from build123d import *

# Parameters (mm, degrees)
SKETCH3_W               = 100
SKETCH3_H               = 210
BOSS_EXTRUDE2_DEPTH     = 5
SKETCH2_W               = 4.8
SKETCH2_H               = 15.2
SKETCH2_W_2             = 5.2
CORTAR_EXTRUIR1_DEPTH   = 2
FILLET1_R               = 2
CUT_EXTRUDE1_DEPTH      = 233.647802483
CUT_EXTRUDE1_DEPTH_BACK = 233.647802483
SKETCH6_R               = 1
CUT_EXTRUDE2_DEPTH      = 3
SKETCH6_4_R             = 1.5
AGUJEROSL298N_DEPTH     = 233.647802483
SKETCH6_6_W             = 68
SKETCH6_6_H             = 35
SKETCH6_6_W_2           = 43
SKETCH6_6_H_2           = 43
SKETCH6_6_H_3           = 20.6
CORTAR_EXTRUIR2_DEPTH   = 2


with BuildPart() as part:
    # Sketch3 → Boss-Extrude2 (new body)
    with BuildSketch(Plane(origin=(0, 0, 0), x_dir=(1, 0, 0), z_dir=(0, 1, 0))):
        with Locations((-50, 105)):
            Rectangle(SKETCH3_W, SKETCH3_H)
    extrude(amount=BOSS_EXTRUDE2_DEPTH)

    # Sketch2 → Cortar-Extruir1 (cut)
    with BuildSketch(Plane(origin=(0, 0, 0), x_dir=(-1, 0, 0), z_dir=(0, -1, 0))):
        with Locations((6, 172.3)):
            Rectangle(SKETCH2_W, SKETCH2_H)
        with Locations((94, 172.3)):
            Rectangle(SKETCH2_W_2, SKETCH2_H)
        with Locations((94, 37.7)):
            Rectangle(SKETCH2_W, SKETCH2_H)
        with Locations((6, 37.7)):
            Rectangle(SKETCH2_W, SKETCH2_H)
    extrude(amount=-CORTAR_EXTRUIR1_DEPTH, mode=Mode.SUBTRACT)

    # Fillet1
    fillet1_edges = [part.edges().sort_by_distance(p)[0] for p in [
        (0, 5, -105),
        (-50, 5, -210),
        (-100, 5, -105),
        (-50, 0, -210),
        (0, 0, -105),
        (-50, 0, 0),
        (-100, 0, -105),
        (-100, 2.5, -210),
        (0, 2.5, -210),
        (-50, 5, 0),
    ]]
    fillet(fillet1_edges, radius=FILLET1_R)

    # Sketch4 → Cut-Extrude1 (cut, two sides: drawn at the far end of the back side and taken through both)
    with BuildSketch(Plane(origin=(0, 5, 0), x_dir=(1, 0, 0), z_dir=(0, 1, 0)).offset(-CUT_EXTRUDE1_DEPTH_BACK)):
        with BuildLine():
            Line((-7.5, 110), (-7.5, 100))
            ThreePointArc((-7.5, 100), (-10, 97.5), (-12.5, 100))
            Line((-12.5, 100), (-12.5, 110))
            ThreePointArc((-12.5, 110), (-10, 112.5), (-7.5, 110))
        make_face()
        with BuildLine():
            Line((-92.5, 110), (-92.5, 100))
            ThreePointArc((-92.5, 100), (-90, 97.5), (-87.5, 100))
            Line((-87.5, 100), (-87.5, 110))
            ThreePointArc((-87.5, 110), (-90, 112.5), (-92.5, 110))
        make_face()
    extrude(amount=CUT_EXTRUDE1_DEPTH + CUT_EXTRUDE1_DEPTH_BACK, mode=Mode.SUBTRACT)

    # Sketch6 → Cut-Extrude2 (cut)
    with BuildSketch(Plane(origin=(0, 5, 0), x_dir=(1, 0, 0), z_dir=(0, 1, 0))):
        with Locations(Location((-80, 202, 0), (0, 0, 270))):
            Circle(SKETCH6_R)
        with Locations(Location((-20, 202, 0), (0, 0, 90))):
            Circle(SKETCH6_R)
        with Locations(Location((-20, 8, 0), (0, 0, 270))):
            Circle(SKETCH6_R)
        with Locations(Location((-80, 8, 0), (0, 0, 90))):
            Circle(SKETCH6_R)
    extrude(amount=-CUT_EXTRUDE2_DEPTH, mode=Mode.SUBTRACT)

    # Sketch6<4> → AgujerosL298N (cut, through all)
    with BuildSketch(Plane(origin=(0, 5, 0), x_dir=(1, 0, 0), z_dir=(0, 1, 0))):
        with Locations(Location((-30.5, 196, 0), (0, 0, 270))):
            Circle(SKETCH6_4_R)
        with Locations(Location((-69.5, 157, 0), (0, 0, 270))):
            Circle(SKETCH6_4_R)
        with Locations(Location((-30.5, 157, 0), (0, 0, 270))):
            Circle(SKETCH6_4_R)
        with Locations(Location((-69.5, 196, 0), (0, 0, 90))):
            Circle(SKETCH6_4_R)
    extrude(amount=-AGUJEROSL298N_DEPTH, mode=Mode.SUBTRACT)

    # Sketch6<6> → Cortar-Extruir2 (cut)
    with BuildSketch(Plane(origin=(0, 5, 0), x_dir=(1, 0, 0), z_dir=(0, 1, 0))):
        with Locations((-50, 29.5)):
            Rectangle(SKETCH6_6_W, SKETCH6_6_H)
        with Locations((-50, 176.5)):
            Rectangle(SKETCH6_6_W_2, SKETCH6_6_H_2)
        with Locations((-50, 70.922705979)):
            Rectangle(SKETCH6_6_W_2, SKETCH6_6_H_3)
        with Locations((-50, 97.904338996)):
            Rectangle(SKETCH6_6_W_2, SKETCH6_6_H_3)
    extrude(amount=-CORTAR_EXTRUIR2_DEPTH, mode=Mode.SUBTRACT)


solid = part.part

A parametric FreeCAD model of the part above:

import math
import FreeCAD as App
import Part
import Sketcher

V = App.Vector
Q = App.Units.Quantity


def edges_at(feature, points):
    """Names of the edges that pass closest to the given points."""
    edges = feature.Shape.Edges
    near = lambda p: min(range(len(edges)), key=lambda i: edges[i].distToShape(Part.Vertex(*p))[0])
    return sorted({f"Edge{near(p) + 1}" for p in points})

doc = App.newDocument("Part")
body = doc.addObject("PartDesign::Body", "Body")

# Sketch on XZ plane
sketch1 = body.newObject("Sketcher::SketchObject", "Sketch")
sketch1.AttachmentSupport = (doc.getObject("XZ_Plane"), [""])
sketch1.MapMode = "FlatFace"
sketch1.addGeometry([
    Part.LineSegment(V(-100, -210, 0), V(-100, 0, 0)),
    Part.LineSegment(V(-100, 0, 0), V(0, 0, 0)),
    Part.LineSegment(V(0, 0, 0), V(0, -210, 0)),
    Part.LineSegment(V(0, -210, 0), V(-100, -210, 0)),
], False)
sketch1.addConstraint([
    Sketcher.Constraint("Coincident", 0, 2, 1, 1),
    Sketcher.Constraint("Coincident", 1, 2, 2, 1),
    Sketcher.Constraint("Coincident", 2, 2, 3, 1),
    Sketcher.Constraint("Coincident", 3, 2, 0, 1),
    Sketcher.Constraint("Vertical", 0),
    Sketcher.Constraint("Horizontal", 1),
    Sketcher.Constraint("Vertical", 2),
    Sketcher.Constraint("Horizontal", 3),
    Sketcher.Constraint("Coincident", 1, 2, -1, 1),
    Sketcher.Constraint("DistanceX", 1, 1, 1, 2, Q("100 mm")),
    Sketcher.Constraint("DistanceY", 0, 1, 0, 2, Q("210 mm")),
])
pad1 = body.newObject("PartDesign::Pad", "Pad")
pad1.Profile = sketch1
pad1.Length = 5
pad1.Reversed = True

# Sketch on XZ plane
sketch2 = body.newObject("Sketcher::SketchObject", "Sketch001")
sketch2.AttachmentSupport = (doc.getObject("XZ_Plane"), [""])
sketch2.MapMode = "FlatFace"
sketch2.addGeometry([
    Part.LineSegment(V(-3.6, -179.9, 0), V(-3.6, -164.7, 0)),  # 0
    Part.LineSegment(V(-3.6, -164.7, 0), V(-8.4, -164.7, 0)),  # 1
    Part.LineSegment(V(-8.4, -164.7, 0), V(-8.4, -179.9, 0)),  # 2
    Part.LineSegment(V(-8.4, -179.9, 0), V(-3.6, -179.9, 0)),  # 3
    Part.LineSegment(V(-91.4, -179.9, 0), V(-91.4, -164.7, 0)),  # 4
    Part.LineSegment(V(-91.4, -164.7, 0), V(-96.6, -164.7, 0)),  # 5
    Part.LineSegment(V(-96.6, -164.7, 0), V(-96.6, -179.9, 0)),  # 6
    Part.LineSegment(V(-96.6, -179.9, 0), V(-91.4, -179.9, 0)),  # 7
    Part.LineSegment(V(-91.6, -45.3, 0), V(-91.6, -30.1, 0)),  # 8
    Part.LineSegment(V(-91.6, -30.1, 0), V(-96.4, -30.1, 0)),  # 9
    Part.LineSegment(V(-96.4, -30.1, 0), V(-96.4, -45.3, 0)),  # 10
    Part.LineSegment(V(-96.4, -45.3, 0), V(-91.6, -45.3, 0)),  # 11
    Part.LineSegment(V(-3.6, -45.3, 0), V(-3.6, -30.1, 0)),  # 12
    Part.LineSegment(V(-3.6, -30.1, 0), V(-8.4, -30.1, 0)),  # 13
    Part.LineSegment(V(-8.4, -30.1, 0), V(-8.4, -45.3, 0)),  # 14
    Part.LineSegment(V(-8.4, -45.3, 0), V(-3.6, -45.3, 0)),  # 15
], False)
sketch2.addConstraint([
    Sketcher.Constraint("Coincident", 0, 2, 1, 1),
    Sketcher.Constraint("Coincident", 1, 2, 2, 1),
    Sketcher.Constraint("Coincident", 2, 2, 3, 1),
    Sketcher.Constraint("Coincident", 3, 2, 0, 1),
    Sketcher.Constraint("Coincident", 4, 2, 5, 1),
    Sketcher.Constraint("Coincident", 5, 2, 6, 1),
    Sketcher.Constraint("Coincident", 6, 2, 7, 1),
    Sketcher.Constraint("Coincident", 7, 2, 4, 1),
    Sketcher.Constraint("Coincident", 8, 2, 9, 1),
    Sketcher.Constraint("Coincident", 9, 2, 10, 1),
    Sketcher.Constraint("Coincident", 10, 2, 11, 1),
    Sketcher.Constraint("Coincident", 11, 2, 8, 1),
    Sketcher.Constraint("Coincident", 12, 2, 13, 1),
    Sketcher.Constraint("Coincident", 13, 2, 14, 1),
    Sketcher.Constraint("Coincident", 14, 2, 15, 1),
    Sketcher.Constraint("Coincident", 15, 2, 12, 1),
    Sketcher.Constraint("Vertical", 0),
    Sketcher.Constraint("Horizontal", 1),
    Sketcher.Constraint("Vertical", 2),
    Sketcher.Constraint("Horizontal", 3),
    Sketcher.Constraint("Vertical", 4),
    Sketcher.Constraint("Horizontal", 5),
    Sketcher.Constraint("Vertical", 6),
    Sketcher.Constraint("Horizontal", 7),
    Sketcher.Constraint("Vertical", 8),
    Sketcher.Constraint("Horizontal", 9),
    Sketcher.Constraint("Vertical", 10),
    Sketcher.Constraint("Horizontal", 11),
    Sketcher.Constraint("Vertical", 12),
    Sketcher.Constraint("Horizontal", 13),
    Sketcher.Constraint("Vertical", 14),
    Sketcher.Constraint("Horizontal", 15),
    Sketcher.Constraint("Horizontal", 1, 2, 4, 2),
    Sketcher.Constraint("Horizontal", 3, 2, 6, 2),
    Sketcher.Constraint("Horizontal", 9, 2, 12, 2),
    Sketcher.Constraint("Horizontal", 11, 2, 14, 2),
    Sketcher.Constraint("Vertical", 3, 2, 12, 2),
    Sketcher.Constraint("Vertical", 2, 2, 13, 2),
    Sketcher.Constraint("Equal", 3, 9),
    Sketcher.Constraint("Equal", 6, 8),
    Sketcher.Constraint("DistanceX", 1, 2, 1, 1, Q("4.8 mm")),
    Sketcher.Constraint("DistanceX", 5, 2, 5, 1, Q("5.2 mm")),
    Sketcher.Constraint("DistanceY", 0, 1, 0, 2, Q("15.2 mm")),
    Sketcher.Constraint("DistanceX", 4, 2, 1, 2, Q("83 mm")),
    Sketcher.Constraint("DistanceX", 5, 2, 8, 2, Q("5 mm")),
    Sketcher.Constraint("DistanceX", 0, 2, -1, 1, Q("3.6 mm")),
    Sketcher.Constraint("DistanceY", 0, 2, -1, 1, Q("164.7 mm")),
    Sketcher.Constraint("DistanceY", 8, 2, -1, 1, Q("30.1 mm")),
])
pocket1 = body.newObject("PartDesign::Pocket", "Pocket")
pocket1.Profile = sketch2
pocket1.Length = 2
doc.recompute()

fillet = body.newObject("PartDesign::Fillet", "Fillet")
fillet.Base = (pocket1, edges_at(pocket1, [
    (0, 5, -105),
    (-50, 5, -210),
    (-100, 5, -105),
    (-50, 0, -210),
    (0, 0, -105),
    (-50, 0, 0),
    (-100, 0, -105),
    (-100, 2.5, -210),
    (0, 2.5, -210),
    (-50, 5, 0),
]))
fillet.Radius = 2

# Sketch on XZ plane
sketch3 = body.newObject("Sketcher::SketchObject", "Sketch002")
sketch3.AttachmentSupport = (doc.getObject("XZ_Plane"), [""])
sketch3.MapMode = "FlatFace"
sketch3.AttachmentOffset = App.Placement(V(0, 0, -5), App.Rotation())
sketch3.addGeometry([
    Part.LineSegment(V(-7.5, -100, 0), V(-7.5, -110, 0)),  # 0
    Part.ArcOfCircle(Part.Circle(V(-10, -110, 0), V(0, 0, 1), 2.5), math.radians(180), math.radians(360)),  # 1
    Part.LineSegment(V(-12.5, -110, 0), V(-12.5, -100, 0)),  # 2
    Part.ArcOfCircle(Part.Circle(V(-10, -100, 0), V(0, 0, 1), 2.5), math.radians(0), math.radians(180)),  # 3
    Part.LineSegment(V(-92.5, -110, 0), V(-92.5, -100, 0)),  # 4
    Part.ArcOfCircle(Part.Circle(V(-90, -100, 0), V(0, 0, 1), 2.5), math.radians(0), math.radians(180)),  # 5
    Part.LineSegment(V(-87.5, -100, 0), V(-87.5, -110, 0)),  # 6
    Part.ArcOfCircle(Part.Circle(V(-90, -110, 0), V(0, 0, 1), 2.5), math.radians(180), math.radians(360)),  # 7
], False)
sketch3.addConstraint([
    Sketcher.Constraint("Tangent", 0, 2, 1, 2),
    Sketcher.Constraint("Tangent", 1, 1, 2, 1),
    Sketcher.Constraint("Tangent", 2, 2, 3, 2),
    Sketcher.Constraint("Tangent", 3, 1, 0, 1),
    Sketcher.Constraint("Tangent", 4, 2, 5, 2),
    Sketcher.Constraint("Tangent", 5, 1, 6, 1),
    Sketcher.Constraint("Tangent", 6, 2, 7, 2),
    Sketcher.Constraint("Tangent", 7, 1, 4, 1),
    Sketcher.Constraint("Vertical", 0),
    Sketcher.Constraint("Vertical", 2),
    Sketcher.Constraint("Vertical", 4),
    Sketcher.Constraint("Vertical", 6),
    Sketcher.Constraint("Equal", 3, 5),
    Sketcher.Constraint("Horizontal", 3, 3, 5, 3),
    Sketcher.Constraint("Horizontal", 1, 3, 7, 3),
    Sketcher.Constraint("Radius", 1, Q("2.5 mm")),
    Sketcher.Constraint("DistanceY", 0, 2, 0, 1, Q("10 mm")),
    Sketcher.Constraint("DistanceX", 1, 3, -1, 1, Q("10 mm")),
    Sketcher.Constraint("DistanceY", 1, 3, -1, 1, Q("110 mm")),
    Sketcher.Constraint("DistanceX", 5, 3, -1, 1, Q("90 mm")),
])
pocket2 = body.newObject("PartDesign::Pocket", "Pocket001")
pocket2.Profile = sketch3
pocket2.Type = "ThroughAll"
pocket2.Midplane = True

# Sketch on XZ plane
sketch4 = body.newObject("Sketcher::SketchObject", "Sketch003")
sketch4.AttachmentSupport = (doc.getObject("XZ_Plane"), [""])
sketch4.MapMode = "FlatFace"
sketch4.AttachmentOffset = App.Placement(V(0, 0, -5), App.Rotation())
sketch4.addGeometry([
    Part.Circle(V(-80, -202, 0), V(0, 0, 1), 1),
    Part.Circle(V(-20, -202, 0), V(0, 0, 1), 1),
    Part.Circle(V(-20, -8, 0), V(0, 0, 1), 1),
    Part.Circle(V(-80, -8, 0), V(0, 0, 1), 1),
], False)
sketch4.addConstraint([
    Sketcher.Constraint("Equal", 0, 1),
    Sketcher.Constraint("Equal", 1, 2),
    Sketcher.Constraint("Equal", 2, 3),
    Sketcher.Constraint("Horizontal", 0, 3, 1, 3),
    Sketcher.Constraint("Horizontal", 2, 3, 3, 3),
    Sketcher.Constraint("Vertical", 1, 3, 2, 3),
    Sketcher.Constraint("Vertical", 0, 3, 3, 3),
    Sketcher.Constraint("Diameter", 0, Q("2 mm")),
    Sketcher.Constraint("DistanceX", 0, 3, -1, 1, Q("80 mm")),
    Sketcher.Constraint("DistanceY", 0, 3, -1, 1, Q("202 mm")),
    Sketcher.Constraint("DistanceX", 1, 3, -1, 1, Q("20 mm")),
    Sketcher.Constraint("DistanceY", 2, 3, -1, 1, Q("8 mm")),
])
pocket3 = body.newObject("PartDesign::Pocket", "Pocket002")
pocket3.Profile = sketch4
pocket3.Length = 3
pocket3.Reversed = True

# Sketch on XZ plane
sketch5 = body.newObject("Sketcher::SketchObject", "Sketch004")
sketch5.AttachmentSupport = (doc.getObject("XZ_Plane"), [""])
sketch5.MapMode = "FlatFace"
sketch5.AttachmentOffset = App.Placement(V(0, 0, -5), App.Rotation())
sketch5.addGeometry([
    Part.Circle(V(-30.5, -196, 0), V(0, 0, 1), 1.5),
    Part.Circle(V(-69.5, -157, 0), V(0, 0, 1), 1.5),
    Part.Circle(V(-30.5, -157, 0), V(0, 0, 1), 1.5),
    Part.Circle(V(-69.5, -196, 0), V(0, 0, 1), 1.5),
], False)
sketch5.addConstraint([
    Sketcher.Constraint("Equal", 0, 1),
    Sketcher.Constraint("Equal", 1, 2),
    Sketcher.Constraint("Equal", 2, 3),
    Sketcher.Constraint("Horizontal", 1, 3, 2, 3),
    Sketcher.Constraint("Horizontal", 0, 3, 3, 3),
    Sketcher.Constraint("Vertical", 0, 3, 2, 3),
    Sketcher.Constraint("Vertical", 1, 3, 3, 3),
    Sketcher.Constraint("Diameter", 0, Q("3 mm")),
    Sketcher.Constraint("DistanceY", 0, 3, -1, 1, Q("196 mm")),
    Sketcher.Constraint("DistanceY", 1, 3, -1, 1, Q("157 mm")),
    Sketcher.Constraint("DistanceX", 1, 3, 0, 3, Q("39 mm")),
    Sketcher.Constraint("DistanceX", 0, 3, -1, 1, Q("30.5 mm")),
])
pocket4 = body.newObject("PartDesign::Pocket", "Pocket003")
pocket4.Profile = sketch5
pocket4.Type = "ThroughAll"
pocket4.Reversed = True

# Sketch on XZ plane
sketch6 = body.newObject("Sketcher::SketchObject", "Sketch005")
sketch6.AttachmentSupport = (doc.getObject("XZ_Plane"), [""])
sketch6.MapMode = "FlatFace"
sketch6.AttachmentOffset = App.Placement(V(0, 0, -5), App.Rotation())
sketch6.addGeometry([
    Part.LineSegment(V(-84, -47, 0), V(-84, -12, 0)),  # 0
    Part.LineSegment(V(-84, -12, 0), V(-16, -12, 0)),  # 1
    Part.LineSegment(V(-16, -12, 0), V(-16, -47, 0)),  # 2
    Part.LineSegment(V(-16, -47, 0), V(-84, -47, 0)),  # 3
    Part.LineSegment(V(-72, -198, 0), V(-72, -155, 0)),  # 4
    Part.LineSegment(V(-72, -155, 0), V(-28, -155, 0)),  # 5
    Part.LineSegment(V(-28, -155, 0), V(-28, -198, 0)),  # 6
    Part.LineSegment(V(-28, -198, 0), V(-72, -198, 0)),  # 7
    Part.LineSegment(V(-72, -81, 0), V(-72, -61, 0)),  # 8
    Part.LineSegment(V(-72, -61, 0), V(-28, -61, 0)),  # 9
    Part.LineSegment(V(-28, -61, 0), V(-28, -81, 0)),  # 10
    Part.LineSegment(V(-28, -81, 0), V(-72, -81, 0)),  # 11
    Part.LineSegment(V(-72, -108, 0), V(-72, -88, 0)),  # 12
    Part.LineSegment(V(-72, -88, 0), V(-28, -88, 0)),  # 13
    Part.LineSegment(V(-28, -88, 0), V(-28, -108, 0)),  # 14
    Part.LineSegment(V(-28, -108, 0), V(-72, -108, 0)),  # 15
], False)
sketch6.addConstraint([
    Sketcher.Constraint("Coincident", 0, 2, 1, 1),
    Sketcher.Constraint("Coincident", 1, 2, 2, 1),
    Sketcher.Constraint("Coincident", 2, 2, 3, 1),
    Sketcher.Constraint("Coincident", 3, 2, 0, 1),
    Sketcher.Constraint("Coincident", 4, 2, 5, 1),
    Sketcher.Constraint("Coincident", 5, 2, 6, 1),
    Sketcher.Constraint("Coincident", 6, 2, 7, 1),
    Sketcher.Constraint("Coincident", 7, 2, 4, 1),
    Sketcher.Constraint("Coincident", 8, 2, 9, 1),
    Sketcher.Constraint("Coincident", 9, 2, 10, 1),
    Sketcher.Constraint("Coincident", 10, 2, 11, 1),
    Sketcher.Constraint("Coincident", 11, 2, 8, 1),
    Sketcher.Constraint("Coincident", 12, 2, 13, 1),
    Sketcher.Constraint("Coincident", 13, 2, 14, 1),
    Sketcher.Constraint("Coincident", 14, 2, 15, 1),
    Sketcher.Constraint("Coincident", 15, 2, 12, 1),
    Sketcher.Constraint("Vertical", 0),
    Sketcher.Constraint("Horizontal", 1),
    Sketcher.Constraint("Vertical", 2),
    Sketcher.Constraint("Horizontal", 3),
    Sketcher.Constraint("Vertical", 4),
    Sketcher.Constraint("Horizontal", 5),
    Sketcher.Constraint("Vertical", 6),
    Sketcher.Constraint("Horizontal", 7),
    Sketcher.Constraint("Vertical", 8),
    Sketcher.Constraint("Horizontal", 9),
    Sketcher.Constraint("Vertical", 10),
    Sketcher.Constraint("Horizontal", 11),
    Sketcher.Constraint("Vertical", 12),
    Sketcher.Constraint("Horizontal", 13),
    Sketcher.Constraint("Vertical", 14),
    Sketcher.Constraint("Horizontal", 15),
    Sketcher.Constraint("Vertical", 7, 2, 8, 2),
    Sketcher.Constraint("Vertical", 6, 2, 9, 2),
    Sketcher.Constraint("Vertical", 11, 2, 12, 2),
    Sketcher.Constraint("Vertical", 10, 2, 13, 2),
    Sketcher.Constraint("Equal", 15, 4),
    Sketcher.Constraint("Equal", 10, 12),
    Sketcher.Constraint("DistanceX", 1, 1, 1, 2, Q("68 mm")),
    Sketcher.Constraint("DistanceX", 5, 1, 5, 2, Q("43 mm")),
    Sketcher.Constraint("DistanceY", 0, 1, 0, 2, Q("35 mm")),
    Sketcher.Constraint("DistanceY", 8, 1, 8, 2, Q("20.6 mm")),
    Sketcher.Constraint("DistanceX", 0, 2, -1, 1, Q("84 mm")),
    Sketcher.Constraint("DistanceY", 0, 2, -1, 1, Q("12 mm")),
    Sketcher.Constraint("DistanceY", 4, 2, -1, 1, Q("155 mm")),
    Sketcher.Constraint("DistanceX", 4, 2, -1, 1, Q("71.5 mm")),
    Sketcher.Constraint("DistanceY", 12, 2, -1, 1, Q("87.604339 mm")),
    Sketcher.Constraint("DistanceY", 8, 2, -1, 1, Q("60.622706 mm")),
])
pocket5 = body.newObject("PartDesign::Pocket", "Pocket004")
pocket5.Profile = sketch6
pocket5.Length = 2
pocket5.Reversed = True

doc.recompute()
